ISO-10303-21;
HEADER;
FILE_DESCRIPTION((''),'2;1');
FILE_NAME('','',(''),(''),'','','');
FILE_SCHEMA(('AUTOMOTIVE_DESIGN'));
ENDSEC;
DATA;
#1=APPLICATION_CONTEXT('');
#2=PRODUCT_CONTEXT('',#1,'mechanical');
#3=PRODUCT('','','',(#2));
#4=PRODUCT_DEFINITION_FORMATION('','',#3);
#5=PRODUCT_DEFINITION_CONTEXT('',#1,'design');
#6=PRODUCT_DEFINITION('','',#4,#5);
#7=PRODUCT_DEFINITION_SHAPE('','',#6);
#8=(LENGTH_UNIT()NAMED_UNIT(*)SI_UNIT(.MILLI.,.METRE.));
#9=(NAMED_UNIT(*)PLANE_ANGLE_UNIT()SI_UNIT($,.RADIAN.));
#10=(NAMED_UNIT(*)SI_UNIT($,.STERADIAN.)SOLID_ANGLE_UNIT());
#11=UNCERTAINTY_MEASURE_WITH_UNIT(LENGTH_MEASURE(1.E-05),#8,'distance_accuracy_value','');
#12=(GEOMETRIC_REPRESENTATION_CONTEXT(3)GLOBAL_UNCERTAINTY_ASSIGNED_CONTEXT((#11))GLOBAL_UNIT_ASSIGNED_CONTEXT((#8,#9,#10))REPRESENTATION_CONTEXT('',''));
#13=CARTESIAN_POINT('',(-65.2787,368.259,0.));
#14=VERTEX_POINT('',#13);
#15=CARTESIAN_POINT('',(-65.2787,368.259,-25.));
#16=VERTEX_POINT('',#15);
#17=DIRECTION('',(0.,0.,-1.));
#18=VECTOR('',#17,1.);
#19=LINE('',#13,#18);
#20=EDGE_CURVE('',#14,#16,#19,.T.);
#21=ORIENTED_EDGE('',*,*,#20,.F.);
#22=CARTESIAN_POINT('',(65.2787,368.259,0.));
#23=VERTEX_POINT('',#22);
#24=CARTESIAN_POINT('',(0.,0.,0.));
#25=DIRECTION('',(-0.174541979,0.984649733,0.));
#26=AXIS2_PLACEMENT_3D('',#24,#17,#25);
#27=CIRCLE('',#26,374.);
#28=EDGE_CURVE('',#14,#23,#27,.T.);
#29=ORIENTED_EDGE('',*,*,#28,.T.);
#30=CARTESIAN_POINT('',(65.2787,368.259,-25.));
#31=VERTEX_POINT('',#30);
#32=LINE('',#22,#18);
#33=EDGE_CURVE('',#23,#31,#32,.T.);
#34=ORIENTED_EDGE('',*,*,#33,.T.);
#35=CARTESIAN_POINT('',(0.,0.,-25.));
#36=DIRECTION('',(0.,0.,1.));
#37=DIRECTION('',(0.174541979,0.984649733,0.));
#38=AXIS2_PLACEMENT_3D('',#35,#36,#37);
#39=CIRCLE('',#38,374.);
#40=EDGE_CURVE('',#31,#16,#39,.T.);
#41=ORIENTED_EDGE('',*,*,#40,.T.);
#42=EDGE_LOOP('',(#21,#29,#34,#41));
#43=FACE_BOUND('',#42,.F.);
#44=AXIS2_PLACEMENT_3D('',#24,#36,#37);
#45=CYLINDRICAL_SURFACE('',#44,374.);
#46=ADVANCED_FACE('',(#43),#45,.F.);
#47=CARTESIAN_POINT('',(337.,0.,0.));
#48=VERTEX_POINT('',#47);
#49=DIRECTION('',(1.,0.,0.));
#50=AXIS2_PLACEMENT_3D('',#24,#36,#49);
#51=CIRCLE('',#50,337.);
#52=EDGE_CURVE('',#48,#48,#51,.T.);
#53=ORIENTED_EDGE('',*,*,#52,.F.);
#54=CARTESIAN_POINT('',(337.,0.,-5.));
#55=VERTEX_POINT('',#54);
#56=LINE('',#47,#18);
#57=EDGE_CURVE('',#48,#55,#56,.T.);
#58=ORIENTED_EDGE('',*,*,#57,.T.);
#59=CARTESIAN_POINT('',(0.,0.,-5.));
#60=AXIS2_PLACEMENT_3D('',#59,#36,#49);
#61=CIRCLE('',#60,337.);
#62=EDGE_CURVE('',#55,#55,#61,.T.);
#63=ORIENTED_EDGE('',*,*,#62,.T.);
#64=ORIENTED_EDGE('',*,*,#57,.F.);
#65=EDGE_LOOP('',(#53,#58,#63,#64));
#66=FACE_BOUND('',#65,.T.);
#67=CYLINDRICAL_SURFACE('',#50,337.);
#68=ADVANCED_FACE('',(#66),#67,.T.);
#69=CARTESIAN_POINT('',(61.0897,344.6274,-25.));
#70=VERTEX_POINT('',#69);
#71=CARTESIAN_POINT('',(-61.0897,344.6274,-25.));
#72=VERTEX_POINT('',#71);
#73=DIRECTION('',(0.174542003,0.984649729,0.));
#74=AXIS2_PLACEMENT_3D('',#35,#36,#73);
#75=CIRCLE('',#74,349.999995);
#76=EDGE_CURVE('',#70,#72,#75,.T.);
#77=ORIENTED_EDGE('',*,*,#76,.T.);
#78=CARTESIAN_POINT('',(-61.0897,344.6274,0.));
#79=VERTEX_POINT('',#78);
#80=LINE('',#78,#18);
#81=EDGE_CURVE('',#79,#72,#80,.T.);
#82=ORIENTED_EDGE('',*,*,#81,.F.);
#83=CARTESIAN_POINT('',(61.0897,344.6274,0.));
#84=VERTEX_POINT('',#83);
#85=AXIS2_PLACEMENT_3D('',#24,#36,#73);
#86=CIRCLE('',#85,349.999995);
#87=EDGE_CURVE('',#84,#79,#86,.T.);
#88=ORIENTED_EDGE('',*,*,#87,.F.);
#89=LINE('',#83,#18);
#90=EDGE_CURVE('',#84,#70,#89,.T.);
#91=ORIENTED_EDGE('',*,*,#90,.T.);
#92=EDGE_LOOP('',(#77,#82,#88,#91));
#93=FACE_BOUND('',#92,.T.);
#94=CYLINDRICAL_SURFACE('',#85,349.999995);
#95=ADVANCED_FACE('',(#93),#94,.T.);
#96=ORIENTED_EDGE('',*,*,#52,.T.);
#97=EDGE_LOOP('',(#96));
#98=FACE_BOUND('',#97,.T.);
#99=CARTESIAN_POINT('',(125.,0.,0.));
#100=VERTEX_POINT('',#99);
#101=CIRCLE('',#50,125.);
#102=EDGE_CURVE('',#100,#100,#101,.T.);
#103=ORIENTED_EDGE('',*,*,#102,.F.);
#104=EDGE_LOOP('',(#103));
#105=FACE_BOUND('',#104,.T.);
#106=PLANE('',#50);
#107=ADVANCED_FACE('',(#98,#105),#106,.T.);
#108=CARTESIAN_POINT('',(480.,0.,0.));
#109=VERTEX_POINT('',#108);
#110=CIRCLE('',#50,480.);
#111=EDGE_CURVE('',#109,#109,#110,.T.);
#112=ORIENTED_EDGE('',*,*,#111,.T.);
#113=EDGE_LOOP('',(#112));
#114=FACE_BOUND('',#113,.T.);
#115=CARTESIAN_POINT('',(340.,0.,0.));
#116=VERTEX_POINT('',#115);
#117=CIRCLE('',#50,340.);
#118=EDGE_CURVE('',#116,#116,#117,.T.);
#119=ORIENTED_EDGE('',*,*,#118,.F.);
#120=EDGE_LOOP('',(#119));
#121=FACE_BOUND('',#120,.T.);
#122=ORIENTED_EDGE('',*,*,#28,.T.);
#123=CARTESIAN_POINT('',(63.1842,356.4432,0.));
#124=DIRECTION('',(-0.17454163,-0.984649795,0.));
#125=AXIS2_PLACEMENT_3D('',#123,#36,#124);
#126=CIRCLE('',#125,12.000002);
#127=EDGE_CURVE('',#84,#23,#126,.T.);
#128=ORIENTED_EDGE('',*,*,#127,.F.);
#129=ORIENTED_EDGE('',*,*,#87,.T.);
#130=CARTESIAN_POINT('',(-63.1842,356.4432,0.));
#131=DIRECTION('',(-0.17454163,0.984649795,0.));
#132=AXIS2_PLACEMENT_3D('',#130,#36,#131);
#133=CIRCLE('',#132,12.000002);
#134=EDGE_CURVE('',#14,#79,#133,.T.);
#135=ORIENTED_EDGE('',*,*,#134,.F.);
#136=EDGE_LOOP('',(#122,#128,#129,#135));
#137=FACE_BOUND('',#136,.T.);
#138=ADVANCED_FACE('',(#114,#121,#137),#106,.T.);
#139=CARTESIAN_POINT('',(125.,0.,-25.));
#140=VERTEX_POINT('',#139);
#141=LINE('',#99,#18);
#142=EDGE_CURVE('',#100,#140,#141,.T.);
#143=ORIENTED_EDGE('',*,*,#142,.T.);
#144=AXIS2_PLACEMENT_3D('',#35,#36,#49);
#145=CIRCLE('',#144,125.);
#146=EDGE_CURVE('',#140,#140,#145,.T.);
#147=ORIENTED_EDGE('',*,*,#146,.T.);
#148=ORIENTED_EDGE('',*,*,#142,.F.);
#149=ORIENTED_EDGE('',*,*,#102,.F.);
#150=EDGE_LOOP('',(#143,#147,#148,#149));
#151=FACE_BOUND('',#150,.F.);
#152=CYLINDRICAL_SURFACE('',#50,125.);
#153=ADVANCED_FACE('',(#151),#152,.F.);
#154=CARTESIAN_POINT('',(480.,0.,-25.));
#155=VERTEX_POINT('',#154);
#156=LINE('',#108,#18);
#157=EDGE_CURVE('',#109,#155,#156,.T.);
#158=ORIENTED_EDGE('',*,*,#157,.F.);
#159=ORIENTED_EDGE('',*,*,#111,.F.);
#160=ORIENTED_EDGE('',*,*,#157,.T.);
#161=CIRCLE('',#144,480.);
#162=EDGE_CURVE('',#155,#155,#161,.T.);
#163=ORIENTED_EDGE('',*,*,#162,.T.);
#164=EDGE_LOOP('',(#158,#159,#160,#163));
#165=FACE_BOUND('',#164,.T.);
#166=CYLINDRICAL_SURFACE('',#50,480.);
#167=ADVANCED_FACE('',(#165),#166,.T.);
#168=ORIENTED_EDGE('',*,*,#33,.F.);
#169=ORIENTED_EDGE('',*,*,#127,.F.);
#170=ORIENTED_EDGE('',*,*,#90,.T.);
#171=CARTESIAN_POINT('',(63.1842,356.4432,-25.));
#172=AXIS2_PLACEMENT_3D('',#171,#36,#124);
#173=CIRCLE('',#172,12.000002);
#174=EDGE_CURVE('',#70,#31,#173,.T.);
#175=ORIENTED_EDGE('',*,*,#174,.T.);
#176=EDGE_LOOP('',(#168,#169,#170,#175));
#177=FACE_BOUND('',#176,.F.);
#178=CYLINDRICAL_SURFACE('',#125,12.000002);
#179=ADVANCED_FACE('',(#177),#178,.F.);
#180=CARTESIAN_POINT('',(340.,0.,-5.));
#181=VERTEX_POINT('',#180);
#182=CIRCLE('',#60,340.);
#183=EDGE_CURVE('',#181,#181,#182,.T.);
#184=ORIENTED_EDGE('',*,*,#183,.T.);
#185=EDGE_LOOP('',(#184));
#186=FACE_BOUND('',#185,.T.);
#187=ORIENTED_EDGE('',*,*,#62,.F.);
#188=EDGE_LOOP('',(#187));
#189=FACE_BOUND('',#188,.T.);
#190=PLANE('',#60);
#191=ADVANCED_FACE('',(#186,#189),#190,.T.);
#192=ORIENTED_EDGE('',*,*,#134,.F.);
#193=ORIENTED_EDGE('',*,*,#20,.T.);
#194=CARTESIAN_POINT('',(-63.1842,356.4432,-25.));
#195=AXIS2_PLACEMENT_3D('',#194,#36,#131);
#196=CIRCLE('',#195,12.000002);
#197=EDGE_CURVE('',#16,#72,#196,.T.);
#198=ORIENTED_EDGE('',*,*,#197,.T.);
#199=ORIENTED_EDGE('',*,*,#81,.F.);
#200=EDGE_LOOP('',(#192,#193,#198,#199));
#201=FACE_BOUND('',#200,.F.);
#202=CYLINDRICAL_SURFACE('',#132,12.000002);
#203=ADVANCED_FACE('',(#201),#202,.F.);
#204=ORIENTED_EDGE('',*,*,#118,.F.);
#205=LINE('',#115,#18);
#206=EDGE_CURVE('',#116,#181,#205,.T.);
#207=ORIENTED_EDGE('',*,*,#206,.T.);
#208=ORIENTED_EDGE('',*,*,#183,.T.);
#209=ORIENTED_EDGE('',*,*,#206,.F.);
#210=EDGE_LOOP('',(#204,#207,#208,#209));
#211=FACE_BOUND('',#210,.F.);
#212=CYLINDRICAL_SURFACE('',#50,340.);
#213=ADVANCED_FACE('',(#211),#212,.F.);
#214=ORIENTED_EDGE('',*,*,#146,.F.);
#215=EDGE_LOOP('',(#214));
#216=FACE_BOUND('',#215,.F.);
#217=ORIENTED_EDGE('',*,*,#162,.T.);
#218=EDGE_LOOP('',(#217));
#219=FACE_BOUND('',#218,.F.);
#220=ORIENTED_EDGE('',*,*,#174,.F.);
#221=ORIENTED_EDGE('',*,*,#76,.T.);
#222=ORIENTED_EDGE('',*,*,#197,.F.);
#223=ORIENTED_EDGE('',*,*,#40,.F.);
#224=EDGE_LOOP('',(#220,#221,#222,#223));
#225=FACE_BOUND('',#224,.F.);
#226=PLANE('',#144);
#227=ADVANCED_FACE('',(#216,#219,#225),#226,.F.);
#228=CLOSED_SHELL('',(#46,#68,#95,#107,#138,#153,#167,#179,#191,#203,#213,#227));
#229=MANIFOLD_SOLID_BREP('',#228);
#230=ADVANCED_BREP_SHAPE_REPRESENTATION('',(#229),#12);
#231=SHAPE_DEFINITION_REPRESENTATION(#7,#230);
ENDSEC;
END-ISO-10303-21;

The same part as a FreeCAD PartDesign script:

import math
import FreeCAD as App
import Part
import Sketcher
from FreeCAD import Vector
Q = App.Units.Quantity

doc = App.newDocument("Part")
body = doc.addObject("PartDesign::Body", "Body")

sketch1 = doc.addObject("Sketcher::SketchObject", "Sketch")
body.addObject(sketch1)
sketch1.AttachmentSupport = (doc.XY_Plane, [""])
sketch1.MapMode = "FlatFace"
sketch1.addGeometry(Part.Circle(Vector(0, 0, 0), Vector(0, 0, 1), 480), False)
sketch1.addGeometry(Part.Circle(Vector(0, 0, 0), Vector(0, 0, 1), 125), False)
sketch1.addConstraint(Sketcher.Constraint("Coincident", 0, 3, -1, 1))
sketch1.addConstraint(Sketcher.Constraint("Coincident", 1, 3, -1, 1))
sketch1.addConstraint(Sketcher.Constraint("Diameter", 0, Q("960 mm")))
sketch1.addConstraint(Sketcher.Constraint("Diameter", 1, Q("250 mm")))
pad1 = doc.addObject("PartDesign::Pad", "Pad")
body.addObject(pad1)
pad1.Profile = sketch1
pad1.Length = 25
pad1.Reversed = True

sketch2 = doc.addObject("Sketcher::SketchObject", "Sketch001")
body.addObject(sketch2)
sketch2.AttachmentSupport = (doc.XY_Plane, [""])
sketch2.MapMode = "FlatFace"
sketch2.addGeometry(Part.Circle(Vector(0, 0, 0), Vector(0, 0, 1), 340), False)
sketch2.addGeometry(Part.Circle(Vector(0, 0, 0), Vector(0, 0, 1), 337), False)
sketch2.addConstraint(Sketcher.Constraint("Coincident", 0, 3, -1, 1))
sketch2.addConstraint(Sketcher.Constraint("Coincident", 1, 3, -1, 1))
sketch2.addConstraint(Sketcher.Constraint("Diameter", 0, Q("680 mm")))
sketch2.addConstraint(Sketcher.Constraint("Diameter", 1, Q("674 mm")))
pocket1 = doc.addObject("PartDesign::Pocket", "Pocket")
body.addObject(pocket1)
pocket1.Profile = sketch2
pocket1.Length = 5

sketch3 = doc.addObject("Sketcher::SketchObject", "Sketch002")
body.addObject(sketch3)
sketch3.AttachmentSupport = (doc.XY_Plane, [""])
sketch3.MapMode = "FlatFace"
sketch3.addGeometry(Part.ArcOfCircle(Part.Circle(Vector(63, 356, 0), Vector(0, 0, 1), 12), math.radians(-100), math.radians(80)), False)
sketch3.addGeometry(Part.ArcOfCircle(Part.Circle(Vector(0, 0, 0), Vector(0, 0, 1), 374), math.radians(80), math.radians(100)), False)
sketch3.addGeometry(Part.ArcOfCircle(Part.Circle(Vector(-63, 356, 0), Vector(0, 0, 1), 12), math.radians(100), math.radians(280)), False)
sketch3.addGeometry(Part.ArcOfCircle(Part.Circle(Vector(0, 0, 0), Vector(0, 0, 1), 350), math.radians(80), math.radians(100)), False)
sketch3.addConstraint(Sketcher.Constraint("Tangent", 0, 2, 1, 1))
sketch3.addConstraint(Sketcher.Constraint("Tangent", 1, 2, 2, 1))
sketch3.addConstraint(Sketcher.Constraint("Tangent", 2, 2, 3, 2))
sketch3.addConstraint(Sketcher.Constraint("Tangent", 3, 1, 0, 1))
sketch3.addConstraint(Sketcher.Constraint("Coincident", 1, 3, -1, 1))
sketch3.addConstraint(Sketcher.Constraint("Coincident", 3, 3, -1, 1))
sketch3.addConstraint(Sketcher.Constraint("Horizontal", 0, 3, 2, 3))
sketch3.addConstraint(Sketcher.Constraint("Radius", 0, Q("12 mm")))
sketch3.addConstraint(Sketcher.Constraint("Radius", 1, Q("374 mm")))
sketch3.addConstraint(Sketcher.Constraint("DistanceY", -1, 1, 0, 2, Q("368.259 mm")))
pocket2 = doc.addObject("PartDesign::Pocket", "Pocket001")
body.addObject(pocket2)
pocket2.Profile = sketch3
pocket2.Type = "UpToFirst"

doc.recompute()
